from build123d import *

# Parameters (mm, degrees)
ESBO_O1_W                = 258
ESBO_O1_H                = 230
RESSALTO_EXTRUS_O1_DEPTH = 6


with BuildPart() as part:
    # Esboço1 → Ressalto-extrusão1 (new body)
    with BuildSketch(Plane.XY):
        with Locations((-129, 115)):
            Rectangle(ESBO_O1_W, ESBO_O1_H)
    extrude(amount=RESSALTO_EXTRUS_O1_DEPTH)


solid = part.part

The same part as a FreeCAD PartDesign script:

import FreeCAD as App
import Part
import Sketcher

V = App.Vector
Q = App.Units.Quantity

doc = App.newDocument("Part")
params = doc.addObject("Spreadsheet::Sheet", "Params")
for row, (alias, value) in enumerate([
    ("sketch1_width", "258 mm"),
    ("sketch1_height", "230 mm"),
    ("pad1_length", "6 mm"),
], start=1):
    params.set(f"A{row}", alias)
    params.set(f"B{row}", "=" + value)
    params.setAlias(f"B{row}", alias)

body = doc.addObject("PartDesign::Body", "Body")

# Sketch on XY plane
sketch1 = body.newObject("Sketcher::SketchObject", "Sketch")
sketch1.AttachmentSupport = (doc.getObject("XY_Plane"), [""])
sketch1.MapMode = "FlatFace"
sketch1.addGeometry([
    Part.LineSegment(V(-258, 230, 0), V(-258, 0, 0)),
    Part.LineSegment(V(-258, 0, 0), V(0, 0, 0)),
    Part.LineSegment(V(0, 0, 0), V(0, 230, 0)),
    Part.LineSegment(V(0, 230, 0), V(-258, 230, 0)),
], False)
sketch1.addConstraint([
    Sketcher.Constraint("Coincident", 0, 2, 1, 1),
    Sketcher.Constraint("Coincident", 1, 2, 2, 1),
    Sketcher.Constraint("Coincident", 2, 2, 3, 1),
    Sketcher.Constraint("Coincident", 3, 2, 0, 1),
    Sketcher.Constraint("Vertical", 0),
    Sketcher.Constraint("Horizontal", 1),
    Sketcher.Constraint("Vertical", 2),
    Sketcher.Constraint("Horizontal", 3),
    Sketcher.Constraint("Coincident", 1, 2, -1, 1),
    Sketcher.Constraint("DistanceX", 1, 1, 1, 2, Q("258 mm")),
    Sketcher.Constraint("DistanceY", 0, 2, 0, 1, Q("230 mm")),
])
sketch1.setExpression("Constraints[9]", "Params.sketch1_width")
sketch1.setExpression("Constraints[10]", "Params.sketch1_height")
pad1 = body.newObject("PartDesign::Pad", "Pad")
pad1.Profile = sketch1
pad1.setExpression("Length", "Params.pad1_length")

doc.recompute()
